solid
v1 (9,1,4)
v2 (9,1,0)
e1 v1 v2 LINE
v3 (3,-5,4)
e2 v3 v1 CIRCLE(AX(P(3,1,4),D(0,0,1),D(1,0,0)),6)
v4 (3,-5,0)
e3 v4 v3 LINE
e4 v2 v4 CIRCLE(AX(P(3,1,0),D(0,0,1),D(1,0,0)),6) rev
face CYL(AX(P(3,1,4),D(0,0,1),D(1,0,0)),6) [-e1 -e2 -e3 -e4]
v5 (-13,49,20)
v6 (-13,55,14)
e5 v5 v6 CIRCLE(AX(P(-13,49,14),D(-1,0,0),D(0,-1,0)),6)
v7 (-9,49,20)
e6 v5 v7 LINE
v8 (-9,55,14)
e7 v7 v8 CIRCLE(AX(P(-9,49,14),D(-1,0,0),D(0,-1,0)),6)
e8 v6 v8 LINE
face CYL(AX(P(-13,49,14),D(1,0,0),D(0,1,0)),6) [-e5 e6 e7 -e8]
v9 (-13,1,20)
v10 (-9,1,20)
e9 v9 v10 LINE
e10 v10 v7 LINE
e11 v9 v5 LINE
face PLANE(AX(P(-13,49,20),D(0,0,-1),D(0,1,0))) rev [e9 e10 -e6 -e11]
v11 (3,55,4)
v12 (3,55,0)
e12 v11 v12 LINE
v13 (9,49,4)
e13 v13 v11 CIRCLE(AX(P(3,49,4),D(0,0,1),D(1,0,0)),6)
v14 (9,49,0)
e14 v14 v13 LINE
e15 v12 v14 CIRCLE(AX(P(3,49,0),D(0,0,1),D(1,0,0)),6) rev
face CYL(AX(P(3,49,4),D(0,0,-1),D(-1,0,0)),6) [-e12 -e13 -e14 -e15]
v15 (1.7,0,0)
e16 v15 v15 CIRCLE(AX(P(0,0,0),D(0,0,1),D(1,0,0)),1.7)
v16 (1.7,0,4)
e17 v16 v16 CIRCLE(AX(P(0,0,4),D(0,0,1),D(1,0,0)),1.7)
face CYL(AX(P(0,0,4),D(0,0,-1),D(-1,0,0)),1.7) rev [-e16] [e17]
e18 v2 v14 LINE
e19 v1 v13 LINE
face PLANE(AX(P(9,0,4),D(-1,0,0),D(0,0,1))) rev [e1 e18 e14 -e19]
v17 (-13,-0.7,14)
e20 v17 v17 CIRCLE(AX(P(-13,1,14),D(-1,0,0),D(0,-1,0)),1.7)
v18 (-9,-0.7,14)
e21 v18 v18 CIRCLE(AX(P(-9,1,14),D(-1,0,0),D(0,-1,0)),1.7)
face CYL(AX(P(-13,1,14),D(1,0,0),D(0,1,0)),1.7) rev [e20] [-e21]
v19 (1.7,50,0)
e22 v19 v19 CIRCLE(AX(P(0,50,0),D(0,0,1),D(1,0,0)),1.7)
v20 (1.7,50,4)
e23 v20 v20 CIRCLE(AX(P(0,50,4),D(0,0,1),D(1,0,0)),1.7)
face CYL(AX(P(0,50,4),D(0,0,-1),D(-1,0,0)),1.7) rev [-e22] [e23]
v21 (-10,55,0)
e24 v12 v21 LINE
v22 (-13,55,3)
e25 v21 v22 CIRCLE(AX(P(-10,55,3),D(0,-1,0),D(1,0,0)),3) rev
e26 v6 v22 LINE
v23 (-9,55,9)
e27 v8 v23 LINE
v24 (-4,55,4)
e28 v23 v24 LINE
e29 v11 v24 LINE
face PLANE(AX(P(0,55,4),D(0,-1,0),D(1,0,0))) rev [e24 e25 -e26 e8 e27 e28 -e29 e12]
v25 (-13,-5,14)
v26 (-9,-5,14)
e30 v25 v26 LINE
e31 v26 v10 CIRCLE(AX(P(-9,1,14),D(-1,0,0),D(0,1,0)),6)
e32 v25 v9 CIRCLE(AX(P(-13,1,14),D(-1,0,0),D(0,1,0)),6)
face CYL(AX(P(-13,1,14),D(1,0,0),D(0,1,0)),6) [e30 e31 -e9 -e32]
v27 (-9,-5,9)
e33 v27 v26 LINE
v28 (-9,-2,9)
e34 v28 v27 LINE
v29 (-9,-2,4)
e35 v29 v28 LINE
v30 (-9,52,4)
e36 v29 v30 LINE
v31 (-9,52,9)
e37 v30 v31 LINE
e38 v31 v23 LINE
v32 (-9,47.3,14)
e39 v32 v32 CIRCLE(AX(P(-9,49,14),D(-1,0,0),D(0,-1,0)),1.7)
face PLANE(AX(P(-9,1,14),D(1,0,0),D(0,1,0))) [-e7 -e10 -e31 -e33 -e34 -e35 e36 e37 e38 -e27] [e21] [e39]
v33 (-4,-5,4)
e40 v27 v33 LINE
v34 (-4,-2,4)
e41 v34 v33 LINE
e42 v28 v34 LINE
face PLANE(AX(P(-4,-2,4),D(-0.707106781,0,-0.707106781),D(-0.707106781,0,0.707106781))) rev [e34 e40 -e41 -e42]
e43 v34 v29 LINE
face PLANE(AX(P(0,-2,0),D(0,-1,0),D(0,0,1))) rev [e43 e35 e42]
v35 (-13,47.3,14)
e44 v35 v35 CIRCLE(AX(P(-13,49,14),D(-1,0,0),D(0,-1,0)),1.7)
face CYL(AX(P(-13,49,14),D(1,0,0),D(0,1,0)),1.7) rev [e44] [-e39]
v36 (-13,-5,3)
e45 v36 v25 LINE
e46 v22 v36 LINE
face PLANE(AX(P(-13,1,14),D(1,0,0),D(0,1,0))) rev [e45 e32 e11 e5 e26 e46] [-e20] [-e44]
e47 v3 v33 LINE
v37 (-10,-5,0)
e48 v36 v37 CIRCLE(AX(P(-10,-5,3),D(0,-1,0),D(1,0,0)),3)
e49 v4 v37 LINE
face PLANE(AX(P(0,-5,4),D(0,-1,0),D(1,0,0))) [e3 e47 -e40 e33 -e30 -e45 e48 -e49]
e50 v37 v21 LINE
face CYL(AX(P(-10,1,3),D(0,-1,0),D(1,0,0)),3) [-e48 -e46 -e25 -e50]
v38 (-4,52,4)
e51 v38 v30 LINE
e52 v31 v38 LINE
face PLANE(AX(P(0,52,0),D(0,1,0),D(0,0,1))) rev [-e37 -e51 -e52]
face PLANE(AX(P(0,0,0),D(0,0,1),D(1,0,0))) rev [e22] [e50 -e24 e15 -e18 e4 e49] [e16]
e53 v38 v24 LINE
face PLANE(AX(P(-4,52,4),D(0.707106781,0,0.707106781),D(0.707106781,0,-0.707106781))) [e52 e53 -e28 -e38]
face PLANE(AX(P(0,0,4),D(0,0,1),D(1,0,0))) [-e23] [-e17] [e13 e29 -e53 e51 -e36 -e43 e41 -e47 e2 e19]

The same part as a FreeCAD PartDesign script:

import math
import FreeCAD as App
import Part
import Sketcher
from FreeCAD import Vector
Q = App.Units.Quantity


def edges_at(feature, points):
    """Names of the edges that pass closest to the given points."""
    edges = feature.Shape.Edges
    near = lambda p: min(range(len(edges)), key=lambda i: edges[i].distToShape(Part.Vertex(*p))[0])
    return sorted({f"Edge{near(p) + 1}" for p in points})


def add_polygon(sketch, points):
    """Adds a closed chain of lines whose ends are joined by coincident constraints."""
    first, n = sketch.GeometryCount, len(points)
    for a, b in zip(points, points[1:] + points[:1]):
        sketch.addGeometry(Part.LineSegment(App.Vector(*a, 0), App.Vector(*b, 0)), False)
    for i in range(n):
        sketch.addConstraint(Sketcher.Constraint("Coincident", first + i, 2, first + (i + 1) % n, 1))

doc = App.newDocument("Part")
body = doc.addObject("PartDesign::Body", "Body")

# Sketch on XY plane
sketch1 = body.newObject("Sketcher::SketchObject", "Sketch")
sketch1.AttachmentSupport = (doc.getObject("XY_Plane"), [""])
sketch1.MapMode = "FlatFace"
add_polygon(sketch1, [(-9, 55), (-9, -5), (9, -5), (9, 55)])  # lines 0-3
sketch1.addGeometry(Part.Circle(Vector(0, 0, 0), Vector(0, 0, 1), 1.7), False)  # 4
sketch1.addGeometry(Part.Circle(Vector(0, 50, 0), Vector(0, 0, 1), 1.7), False)  # 5
sketch1.addConstraint([
    Sketcher.Constraint("Vertical", 0),
    Sketcher.Constraint("Horizontal", 1),
    Sketcher.Constraint("Vertical", 2),
    Sketcher.Constraint("Horizontal", 3),
    Sketcher.Constraint("Coincident", 4, 3, -1, 1),
    Sketcher.Constraint("Equal", 4, 5),
    Sketcher.Constraint("PointOnObject", 5, 3, -2),
    Sketcher.Constraint("Diameter", 4, Q("3.4 mm")),
    Sketcher.Constraint("DistanceX", 1, 1, 1, 2, Q("18 mm")),
    Sketcher.Constraint("DistanceY", 0, 2, 0, 1, Q("60 mm")),
    Sketcher.Constraint("DistanceY", -1, 1, 5, 3, Q("50 mm")),
    Sketcher.Constraint("DistanceX", 0, 2, -1, 1, Q("9 mm")),
    Sketcher.Constraint("DistanceY", 0, 2, -1, 1, Q("5 mm")),
])
pad1 = body.newObject("PartDesign::Pad", "Pad")
pad1.Profile = sketch1
pad1.Length = 4

# Sketch on YZ plane
sketch2 = body.newObject("Sketcher::SketchObject", "Sketch001")
sketch2.AttachmentSupport = (doc.getObject("YZ_Plane"), [""])
sketch2.MapMode = "FlatFace"
sketch2.AttachmentOffset = App.Placement(Vector(0, 0, -9), App.Rotation())
sketch2.addGeometry([
    Part.LineSegment(Vector(55, 14, 0), Vector(55, 0, 0)),  # 0
    Part.LineSegment(Vector(55, 0, 0), Vector(-5, 0, 0)),  # 1
    Part.LineSegment(Vector(-5, 0, 0), Vector(-5, 14, 0)),  # 2
    Part.ArcOfCircle(Part.Circle(Vector(1, 14, 0), Vector(0, 0, 1), 6), math.radians(90), math.radians(180)),  # 3
    Part.LineSegment(Vector(1, 20, 0), Vector(49, 20, 0)),  # 4
    Part.ArcOfCircle(Part.Circle(Vector(49, 14, 0), Vector(0, 0, 1), 6), math.radians(0), math.radians(90)),  # 5
    Part.Circle(Vector(1, 14, 0), Vector(0, 0, 1), 1.7),  # 6
    Part.Circle(Vector(49, 14, 0), Vector(0, 0, 1), 1.7),  # 7
], False)
sketch2.addConstraint([
    Sketcher.Constraint("Coincident", 0, 2, 1, 1),
    Sketcher.Constraint("Coincident", 1, 2, 2, 1),
    Sketcher.Constraint("Tangent", 2, 2, 3, 2),
    Sketcher.Constraint("Tangent", 3, 1, 4, 1),
    Sketcher.Constraint("Tangent", 4, 2, 5, 2),
    Sketcher.Constraint("Tangent", 5, 1, 0, 1),
    Sketcher.Constraint("Vertical", 0),
    Sketcher.Constraint("Horizontal", 1),
    Sketcher.Constraint("Vertical", 2),
    Sketcher.Constraint("Horizontal", 4),
    Sketcher.Constraint("Coincident", 6, 3, 3, 3),
    Sketcher.Constraint("Coincident", 7, 3, 5, 3),
    Sketcher.Constraint("Equal", 3, 5),
    Sketcher.Constraint("Equal", 6, 7),
    Sketcher.Constraint("PointOnObject", 0, 2, -1),
    Sketcher.Constraint("Radius", 3, Q("6 mm")),
    Sketcher.Constraint("Diameter", 6, Q("3.4 mm")),
    Sketcher.Constraint("DistanceX", 1, 2, 1, 1, Q("60 mm")),
    Sketcher.Constraint("DistanceY", 0, 2, 0, 1, Q("14 mm")),
    Sketcher.Constraint("DistanceX", -1, 1, 3, 3, Q("1 mm")),
])
pad2 = body.newObject("PartDesign::Pad", "Pad001")
pad2.Profile = sketch2
pad2.Length = 4
pad2.Reversed = True
doc.recompute()

fillet = body.newObject("PartDesign::Fillet", "Fillet")
fillet.Base = (pad2, edges_at(pad2, [(9, 55, 2), (9, -5, 2)]))
fillet.Radius = 6

# Sketch on XZ plane
sketch3 = body.newObject("Sketcher::SketchObject", "Sketch002")
sketch3.AttachmentSupport = (doc.getObject("XZ_Plane"), [""])
sketch3.MapMode = "FlatFace"
sketch3.AttachmentOffset = App.Placement(Vector(0, 0, -55), App.Rotation())
add_polygon(sketch3, [(-9, 9), (-4, 4), (-9, 4)])  # lines 0-2
sketch3.addConstraint([
    Sketcher.Constraint("Horizontal", 1),
    Sketcher.Constraint("Vertical", 2),
    Sketcher.Constraint("Equal", 1, 2),
    Sketcher.Constraint("DistanceX", 1, 2, 1, 1, Q("5 mm")),
    Sketcher.Constraint("DistanceX", 0, 2, -1, 1, Q("4 mm")),
    Sketcher.Constraint("DistanceY", -1, 1, 0, 2, Q("4 mm")),
])
pad3 = body.newObject("PartDesign::Pad", "Pad002")
pad3.Profile = sketch3
pad3.Length = 3
doc.recompute()

datumplane = body.newObject("PartDesign::Plane", "DatumPlane")
datumplane.AttachmentSupport = (doc.getObject("XZ_Plane"), [""])
datumplane.MapMode = "FlatFace"
datumplane.AttachmentOffset = App.Placement(Vector(0, 0, -25), App.Rotation())
mirrored = body.newObject("PartDesign::Mirrored", "Mirrored")
mirrored.Originals = [pad3]
mirrored.MirrorPlane = (datumplane, [""])
body.Tip = mirrored
doc.recompute()

fillet2 = body.newObject("PartDesign::Fillet", "Fillet001")
fillet2.Base = (mirrored, edges_at(mirrored, [(-13, 25, 0)]))
fillet2.Radius = 3

doc.recompute()
